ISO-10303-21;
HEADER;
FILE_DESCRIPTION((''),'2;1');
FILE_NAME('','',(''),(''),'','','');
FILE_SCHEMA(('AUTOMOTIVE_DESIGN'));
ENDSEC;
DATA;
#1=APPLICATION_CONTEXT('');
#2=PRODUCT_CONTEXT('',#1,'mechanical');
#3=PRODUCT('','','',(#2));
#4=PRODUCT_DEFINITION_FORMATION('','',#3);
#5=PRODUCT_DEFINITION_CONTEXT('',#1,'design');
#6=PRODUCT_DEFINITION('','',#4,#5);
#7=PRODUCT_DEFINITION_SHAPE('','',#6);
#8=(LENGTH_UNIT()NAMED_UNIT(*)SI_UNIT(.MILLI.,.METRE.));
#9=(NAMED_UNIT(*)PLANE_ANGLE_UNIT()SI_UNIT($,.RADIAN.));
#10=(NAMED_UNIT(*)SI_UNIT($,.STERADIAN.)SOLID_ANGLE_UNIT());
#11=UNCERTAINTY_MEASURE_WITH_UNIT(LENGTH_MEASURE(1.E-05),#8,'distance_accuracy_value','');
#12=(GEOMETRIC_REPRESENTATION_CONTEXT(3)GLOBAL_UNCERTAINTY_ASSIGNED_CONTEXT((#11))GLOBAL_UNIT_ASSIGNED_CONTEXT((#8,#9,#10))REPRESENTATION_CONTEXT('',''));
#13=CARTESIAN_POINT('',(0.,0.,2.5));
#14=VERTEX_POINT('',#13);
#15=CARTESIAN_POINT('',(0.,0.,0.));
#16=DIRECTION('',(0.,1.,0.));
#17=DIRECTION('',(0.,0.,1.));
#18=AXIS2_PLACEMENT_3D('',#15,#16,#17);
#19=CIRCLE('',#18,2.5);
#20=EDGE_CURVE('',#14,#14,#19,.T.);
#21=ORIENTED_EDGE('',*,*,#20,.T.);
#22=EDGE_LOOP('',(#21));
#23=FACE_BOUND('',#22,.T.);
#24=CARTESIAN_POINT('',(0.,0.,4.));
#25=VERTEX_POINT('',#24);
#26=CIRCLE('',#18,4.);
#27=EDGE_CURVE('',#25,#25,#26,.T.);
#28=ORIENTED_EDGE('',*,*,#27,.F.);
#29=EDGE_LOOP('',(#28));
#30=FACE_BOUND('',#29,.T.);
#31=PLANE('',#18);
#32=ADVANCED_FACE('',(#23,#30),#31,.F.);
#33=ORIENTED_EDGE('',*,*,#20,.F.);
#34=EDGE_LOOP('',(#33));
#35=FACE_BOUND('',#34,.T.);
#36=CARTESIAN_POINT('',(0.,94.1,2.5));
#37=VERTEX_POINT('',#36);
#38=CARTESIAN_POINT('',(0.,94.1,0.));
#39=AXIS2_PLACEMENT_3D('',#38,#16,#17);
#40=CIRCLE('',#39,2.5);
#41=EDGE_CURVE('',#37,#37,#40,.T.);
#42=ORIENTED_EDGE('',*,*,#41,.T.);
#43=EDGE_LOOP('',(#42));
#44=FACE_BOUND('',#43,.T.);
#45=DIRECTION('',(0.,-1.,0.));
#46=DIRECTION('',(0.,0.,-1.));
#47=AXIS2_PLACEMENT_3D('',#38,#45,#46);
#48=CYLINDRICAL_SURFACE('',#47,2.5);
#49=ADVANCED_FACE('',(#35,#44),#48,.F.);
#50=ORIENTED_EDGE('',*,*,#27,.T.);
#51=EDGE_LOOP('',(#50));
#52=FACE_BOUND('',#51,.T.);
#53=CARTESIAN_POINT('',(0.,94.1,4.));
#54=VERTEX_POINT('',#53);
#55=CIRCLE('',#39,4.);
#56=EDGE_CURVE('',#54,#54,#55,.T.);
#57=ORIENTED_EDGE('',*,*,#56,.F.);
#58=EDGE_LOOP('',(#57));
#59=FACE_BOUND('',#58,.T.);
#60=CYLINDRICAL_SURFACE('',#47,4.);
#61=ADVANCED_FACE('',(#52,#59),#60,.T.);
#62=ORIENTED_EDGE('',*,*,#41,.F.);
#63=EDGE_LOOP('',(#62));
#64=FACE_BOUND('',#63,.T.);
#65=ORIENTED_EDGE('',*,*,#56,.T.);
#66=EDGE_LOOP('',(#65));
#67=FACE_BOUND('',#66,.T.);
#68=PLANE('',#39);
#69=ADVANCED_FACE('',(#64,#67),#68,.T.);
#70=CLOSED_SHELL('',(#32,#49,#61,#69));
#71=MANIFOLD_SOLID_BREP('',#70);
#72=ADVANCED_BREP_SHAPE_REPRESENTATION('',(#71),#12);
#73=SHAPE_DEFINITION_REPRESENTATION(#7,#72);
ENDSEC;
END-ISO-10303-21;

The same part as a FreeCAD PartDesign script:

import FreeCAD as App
import Part
import Sketcher
Q = App.Units.Quantity

doc = App.newDocument("Part")
body = doc.addObject("PartDesign::Body", "Body")

sketch1 = doc.addObject("Sketcher::SketchObject", "Sketch")
body.addObject(sketch1)
sketch1.AttachmentSupport = (doc.XZ_Plane, [""])
sketch1.MapMode = "FlatFace"
sketch1.addGeometry(Part.Circle(App.Vector(0, 0, 0), App.Vector(0, 0, 1), 4), False)
sketch1.addGeometry(Part.Circle(App.Vector(0, 0, 0), App.Vector(0, 0, 1), 2.5), False)
sketch1.addConstraint(Sketcher.Constraint("Coincident", 0, 3, -1, 1))
sketch1.addConstraint(Sketcher.Constraint("Coincident", 1, 3, -1, 1))
sketch1.addConstraint(Sketcher.Constraint("Diameter", 0, Q("8 mm")))
sketch1.addConstraint(Sketcher.Constraint("Diameter", 1, Q("5 mm")))
pad1 = doc.addObject("PartDesign::Pad", "Pad")
body.addObject(pad1)
pad1.Profile = sketch1
pad1.Length = 94.1
pad1.Reversed = True

doc.recompute()
